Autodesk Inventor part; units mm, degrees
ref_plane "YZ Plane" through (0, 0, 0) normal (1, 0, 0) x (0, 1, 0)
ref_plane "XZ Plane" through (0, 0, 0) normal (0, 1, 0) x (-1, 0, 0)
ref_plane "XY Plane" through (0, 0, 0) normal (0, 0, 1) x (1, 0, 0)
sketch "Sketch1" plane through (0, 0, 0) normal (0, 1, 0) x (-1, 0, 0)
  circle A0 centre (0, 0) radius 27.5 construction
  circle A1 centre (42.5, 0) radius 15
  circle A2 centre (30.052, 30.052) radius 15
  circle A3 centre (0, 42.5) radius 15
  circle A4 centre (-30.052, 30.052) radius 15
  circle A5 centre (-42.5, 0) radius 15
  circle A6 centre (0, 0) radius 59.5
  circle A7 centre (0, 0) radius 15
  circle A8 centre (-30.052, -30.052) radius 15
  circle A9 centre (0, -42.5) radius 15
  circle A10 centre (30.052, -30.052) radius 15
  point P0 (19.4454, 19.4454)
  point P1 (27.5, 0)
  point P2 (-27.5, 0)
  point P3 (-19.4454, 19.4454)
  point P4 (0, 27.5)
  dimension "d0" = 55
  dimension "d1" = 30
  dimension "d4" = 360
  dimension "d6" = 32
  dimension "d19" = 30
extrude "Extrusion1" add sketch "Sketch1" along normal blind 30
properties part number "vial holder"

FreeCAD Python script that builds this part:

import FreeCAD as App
import Part
import Sketcher

V = App.Vector
Q = App.Units.Quantity

doc = App.newDocument("Part")
body = doc.addObject("PartDesign::Body", "Body")

sketch1 = body.newObject("Sketcher::SketchObject", "Sketch")
sketch1.AttachmentSupport = (doc.getObject("XZ_Plane"), [""])
sketch1.MapMode = "FlatFace"
sketch1.addGeometry([
    Part.Circle(V(0, 0, 0), V(0, 0, 1), 59.5),
    Part.Circle(V(30.052, -30.052, 0), V(0, 0, 1), 15),
    Part.Circle(V(0, -42.5, 0), V(0, 0, 1), 15),
    Part.Circle(V(-30.052, -30.052, 0), V(0, 0, 1), 15),
    Part.Circle(V(42.5, 0, 0), V(0, 0, 1), 15),
    Part.Circle(V(30.052, 30.052, 0), V(0, 0, 1), 15),
    Part.Circle(V(0, 0, 0), V(0, 0, 1), 15),
    Part.Circle(V(-42.5, 0, 0), V(0, 0, 1), 15),
    Part.Circle(V(0, 42.5, 0), V(0, 0, 1), 15),
    Part.Circle(V(-30.052, 30.052, 0), V(0, 0, 1), 15),
], False)
sketch1.addConstraint([
    Sketcher.Constraint("Coincident", 0, 3, -1, 1),
    Sketcher.Constraint("Coincident", 6, 3, -1, 1),
    Sketcher.Constraint("Equal", 1, 2),
    Sketcher.Constraint("Equal", 2, 3),
    Sketcher.Constraint("Equal", 3, 4),
    Sketcher.Constraint("Equal", 4, 5),
    Sketcher.Constraint("Equal", 5, 6),
    Sketcher.Constraint("Equal", 6, 7),
    Sketcher.Constraint("Equal", 7, 8),
    Sketcher.Constraint("Equal", 8, 9),
    Sketcher.Constraint("Symmetric", 3, 3, 5, 3, -1, 1),
    Sketcher.Constraint("Symmetric", 4, 3, 7, 3, -1, 1),
    Sketcher.Constraint("Symmetric", 2, 3, 8, 3, -1, 1),
    Sketcher.Constraint("Symmetric", 1, 3, 9, 3, -1, 1),
    Sketcher.Constraint("Symmetric", 1, 3, 3, 3, -2),
    Sketcher.Constraint("PointOnObject", 2, 3, -2),
    Sketcher.Constraint("PointOnObject", 4, 3, -1),
    Sketcher.Constraint("Diameter", 1, Q("30 mm")),
    Sketcher.Constraint("Diameter", 0, Q("119 mm")),
    Sketcher.Constraint("DistanceY", 2, 3, -1, 1, Q("42.5 mm")),
    Sketcher.Constraint("DistanceX", -1, 1, 4, 3, Q("42.5 mm")),
    Sketcher.Constraint("DistanceX", -1, 1, 1, 3, Q("30.052 mm")),
    Sketcher.Constraint("DistanceY", 1, 3, -1, 1, Q("30.052 mm")),
])
pad1 = body.newObject("PartDesign::Pad", "Pad")
pad1.Profile = sketch1
pad1.Length = 30
pad1.Reversed = True

doc.recompute()
